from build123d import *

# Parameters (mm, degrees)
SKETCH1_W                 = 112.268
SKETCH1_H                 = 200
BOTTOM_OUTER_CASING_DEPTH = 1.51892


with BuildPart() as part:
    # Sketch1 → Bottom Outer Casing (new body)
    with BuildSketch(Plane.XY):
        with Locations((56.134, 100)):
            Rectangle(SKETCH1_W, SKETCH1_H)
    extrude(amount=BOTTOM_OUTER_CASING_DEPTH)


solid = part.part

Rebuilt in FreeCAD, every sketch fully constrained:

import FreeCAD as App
import Part
import Sketcher

V = App.Vector
Q = App.Units.Quantity

doc = App.newDocument("Part")
body = doc.addObject("PartDesign::Body", "Body")

sketch1 = body.newObject("Sketcher::SketchObject", "Sketch")
sketch1.AttachmentSupport = (doc.getObject("XY_Plane"), [""])
sketch1.MapMode = "FlatFace"
sketch1.addGeometry(Part.LineSegment(V(0, 200, 0), V(0, 0, 0)), False)
sketch1.addGeometry(Part.LineSegment(V(0, 0, 0), V(112, 0, 0)), False)
sketch1.addGeometry(Part.LineSegment(V(112, 0, 0), V(112, 200, 0)), False)
sketch1.addGeometry(Part.LineSegment(V(112, 200, 0), V(0, 200, 0)), False)
sketch1.addConstraint(Sketcher.Constraint("Coincident", 0, 2, 1, 1))
sketch1.addConstraint(Sketcher.Constraint("Coincident", 1, 2, 2, 1))
sketch1.addConstraint(Sketcher.Constraint("Coincident", 2, 2, 3, 1))
sketch1.addConstraint(Sketcher.Constraint("Coincident", 3, 2, 0, 1))
sketch1.addConstraint(Sketcher.Constraint("Vertical", 0))
sketch1.addConstraint(Sketcher.Constraint("Horizontal", 1))
sketch1.addConstraint(Sketcher.Constraint("Vertical", 2))
sketch1.addConstraint(Sketcher.Constraint("Horizontal", 3))
sketch1.addConstraint(Sketcher.Constraint("Coincident", 0, 2, -1, 1))
sketch1.addConstraint(Sketcher.Constraint("DistanceY", 0, 2, 0, 1, Q("200 mm")))
sketch1.addConstraint(Sketcher.Constraint("DistanceX", 1, 1, 1, 2, Q("112.268 mm")))
pad1 = body.newObject("PartDesign::Pad", "Pad")
pad1.Profile = sketch1
pad1.Length = 1.51892

doc.recompute()
